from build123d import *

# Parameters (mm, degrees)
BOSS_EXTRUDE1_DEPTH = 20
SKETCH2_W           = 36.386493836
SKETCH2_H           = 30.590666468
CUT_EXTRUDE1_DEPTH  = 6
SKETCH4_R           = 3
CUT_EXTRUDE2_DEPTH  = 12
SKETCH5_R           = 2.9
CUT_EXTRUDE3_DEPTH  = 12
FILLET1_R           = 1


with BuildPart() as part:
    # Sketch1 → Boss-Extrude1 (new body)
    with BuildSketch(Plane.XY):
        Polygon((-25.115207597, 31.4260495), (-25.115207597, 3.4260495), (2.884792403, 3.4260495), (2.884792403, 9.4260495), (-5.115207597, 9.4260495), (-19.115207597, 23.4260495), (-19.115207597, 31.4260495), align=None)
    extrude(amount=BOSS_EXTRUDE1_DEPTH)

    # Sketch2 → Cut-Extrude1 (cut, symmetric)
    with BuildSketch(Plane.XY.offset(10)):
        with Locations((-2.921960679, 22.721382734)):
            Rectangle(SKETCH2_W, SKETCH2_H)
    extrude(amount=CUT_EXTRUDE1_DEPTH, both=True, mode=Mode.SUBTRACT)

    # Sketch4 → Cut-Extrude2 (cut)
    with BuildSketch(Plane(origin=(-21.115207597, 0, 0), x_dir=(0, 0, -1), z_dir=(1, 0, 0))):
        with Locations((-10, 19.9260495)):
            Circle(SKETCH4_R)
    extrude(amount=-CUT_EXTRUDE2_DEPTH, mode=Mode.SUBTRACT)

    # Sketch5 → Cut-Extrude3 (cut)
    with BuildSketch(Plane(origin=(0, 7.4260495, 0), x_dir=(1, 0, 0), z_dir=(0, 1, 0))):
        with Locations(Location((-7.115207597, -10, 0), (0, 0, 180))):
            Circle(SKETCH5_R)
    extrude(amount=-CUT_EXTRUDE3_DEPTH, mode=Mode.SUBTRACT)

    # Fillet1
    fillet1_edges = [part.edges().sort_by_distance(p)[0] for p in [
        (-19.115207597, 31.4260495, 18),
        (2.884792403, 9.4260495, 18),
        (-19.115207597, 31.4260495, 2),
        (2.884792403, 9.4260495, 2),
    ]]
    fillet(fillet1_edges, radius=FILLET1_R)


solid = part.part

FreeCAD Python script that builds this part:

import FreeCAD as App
import Part
import Sketcher
from FreeCAD import Vector


def edges_at(feature, points):
    """Names of the edges that pass closest to the given points."""
    edges = feature.Shape.Edges
    near = lambda p: min(range(len(edges)), key=lambda i: edges[i].distToShape(Part.Vertex(*p))[0])
    return sorted({f"Edge{near(p) + 1}" for p in points})


def add_polygon(sketch, points):
    """Adds a closed chain of lines whose ends are joined by coincident constraints."""
    first, n = sketch.GeometryCount, len(points)
    for a, b in zip(points, points[1:] + points[:1]):
        sketch.addGeometry(Part.LineSegment(App.Vector(*a, 0), App.Vector(*b, 0)), False)
    for i in range(n):
        sketch.addConstraint(Sketcher.Constraint("Coincident", first + i, 2, first + (i + 1) % n, 1))

doc = App.newDocument("Part")
body = doc.addObject("PartDesign::Body", "Body")

sketch1 = body.newObject("Sketcher::SketchObject", "Sketch")
sketch1.AttachmentSupport = (doc.getObject("XY_Plane"), [""])
sketch1.MapMode = "FlatFace"
add_polygon(sketch1, [(-25, 31), (-25, 3), (3, 3), (3, 9), (-5, 9), (-19, 23), (-19, 31)])
sketch1.addConstraint([
    Sketcher.Constraint("Vertical", 0),
    Sketcher.Constraint("Horizontal", 1),
    Sketcher.Constraint("Vertical", 2),
    Sketcher.Constraint("Horizontal", 3),
    Sketcher.Constraint("Vertical", 5),
    Sketcher.Constraint("Horizontal", 6),
    Sketcher.Constraint("Equal", 1, 0),
    Sketcher.Constraint("Equal", 6, 2),
    Sketcher.Constraint("Equal", 3, 5),
    Sketcher.Constraint("DistanceX", 1, 1, 1, 2, 28.0),
    Sketcher.Constraint("DistanceX", 3, 2, 3, 1, 8.0),
    Sketcher.Constraint("DistanceX", 6, 2, 6, 1, 6.0),
    Sketcher.Constraint("DistanceY", -1, 1, 0, 2, 3.426049),
    Sketcher.Constraint("DistanceX", 0, 2, -1, 1, 25.115208),
])
pad1 = body.newObject("PartDesign::Pad", "Pad")
pad1.Profile = sketch1
pad1.Length = 20

sketch2 = body.newObject("Sketcher::SketchObject", "Sketch001")
sketch2.AttachmentSupport = (doc.getObject("XY_Plane"), [""])
sketch2.MapMode = "FlatFace"
sketch2.AttachmentOffset = App.Placement(Vector(0, 0, 10), App.Rotation())
add_polygon(sketch2, [(-21, 38), (-21, 7), (15, 7), (15, 38)])
sketch2.addConstraint([
    Sketcher.Constraint("Vertical", 0),
    Sketcher.Constraint("Horizontal", 1),
    Sketcher.Constraint("Vertical", 2),
    Sketcher.Constraint("Horizontal", 3),
    Sketcher.Constraint("DistanceX", 1, 1, 1, 2, 36.386494),
    Sketcher.Constraint("DistanceY", 0, 2, 0, 1, 30.590666),
    Sketcher.Constraint("DistanceY", -1, 1, 0, 2, 7.42605),
    Sketcher.Constraint("DistanceX", 0, 2, -1, 1, 21.115208),
])
pocket1 = body.newObject("PartDesign::Pocket", "Pocket")
pocket1.Profile = sketch2
pocket1.Length = 12
pocket1.Midplane = True

sketch3 = body.newObject("Sketcher::SketchObject", "Sketch002")
sketch3.AttachmentSupport = (doc.getObject("YZ_Plane"), [""])
sketch3.MapMode = "FlatFace"
sketch3.AttachmentOffset = App.Placement(Vector(0, 0, -21.115208), App.Rotation())
sketch3.addGeometry(Part.Circle(Vector(19.9, 10, 0), Vector(0, 0, 1), 3), False)
sketch3.addConstraint([
    Sketcher.Constraint("Diameter", 0, 6.0),
    Sketcher.Constraint("DistanceY", -1, 1, 0, 3, 10.0),
    Sketcher.Constraint("DistanceX", -1, 1, 0, 3, 19.92605),
])
pocket2 = body.newObject("PartDesign::Pocket", "Pocket001")
pocket2.Profile = sketch3
pocket2.Length = 12

sketch4 = body.newObject("Sketcher::SketchObject", "Sketch003")
sketch4.AttachmentSupport = (doc.getObject("XZ_Plane"), [""])
sketch4.MapMode = "FlatFace"
sketch4.AttachmentOffset = App.Placement(Vector(0, 0, -7.42605), App.Rotation())
sketch4.addGeometry(Part.Circle(Vector(-7.1, 10, 0), Vector(0, 0, 1), 2.9), False)
sketch4.addConstraint([
    Sketcher.Constraint("Diameter", 0, 5.8),
    Sketcher.Constraint("DistanceY", -1, 1, 0, 3, 10.0),
    Sketcher.Constraint("DistanceX", 0, 3, -1, 1, 7.115208),
])
pocket3 = body.newObject("PartDesign::Pocket", "Pocket002")
pocket3.Profile = sketch4
pocket3.Length = 12
pocket3.Reversed = True
doc.recompute()

fillet = body.newObject("PartDesign::Fillet", "Fillet")
fillet.Base = (pocket3, edges_at(pocket3, [
    (-19.115, 31.426, 18),
    (2.885, 9.426, 18),
    (-19.115, 31.426, 2),
    (2.885, 9.426, 2),
]))
fillet.Radius = 1

doc.recompute()
